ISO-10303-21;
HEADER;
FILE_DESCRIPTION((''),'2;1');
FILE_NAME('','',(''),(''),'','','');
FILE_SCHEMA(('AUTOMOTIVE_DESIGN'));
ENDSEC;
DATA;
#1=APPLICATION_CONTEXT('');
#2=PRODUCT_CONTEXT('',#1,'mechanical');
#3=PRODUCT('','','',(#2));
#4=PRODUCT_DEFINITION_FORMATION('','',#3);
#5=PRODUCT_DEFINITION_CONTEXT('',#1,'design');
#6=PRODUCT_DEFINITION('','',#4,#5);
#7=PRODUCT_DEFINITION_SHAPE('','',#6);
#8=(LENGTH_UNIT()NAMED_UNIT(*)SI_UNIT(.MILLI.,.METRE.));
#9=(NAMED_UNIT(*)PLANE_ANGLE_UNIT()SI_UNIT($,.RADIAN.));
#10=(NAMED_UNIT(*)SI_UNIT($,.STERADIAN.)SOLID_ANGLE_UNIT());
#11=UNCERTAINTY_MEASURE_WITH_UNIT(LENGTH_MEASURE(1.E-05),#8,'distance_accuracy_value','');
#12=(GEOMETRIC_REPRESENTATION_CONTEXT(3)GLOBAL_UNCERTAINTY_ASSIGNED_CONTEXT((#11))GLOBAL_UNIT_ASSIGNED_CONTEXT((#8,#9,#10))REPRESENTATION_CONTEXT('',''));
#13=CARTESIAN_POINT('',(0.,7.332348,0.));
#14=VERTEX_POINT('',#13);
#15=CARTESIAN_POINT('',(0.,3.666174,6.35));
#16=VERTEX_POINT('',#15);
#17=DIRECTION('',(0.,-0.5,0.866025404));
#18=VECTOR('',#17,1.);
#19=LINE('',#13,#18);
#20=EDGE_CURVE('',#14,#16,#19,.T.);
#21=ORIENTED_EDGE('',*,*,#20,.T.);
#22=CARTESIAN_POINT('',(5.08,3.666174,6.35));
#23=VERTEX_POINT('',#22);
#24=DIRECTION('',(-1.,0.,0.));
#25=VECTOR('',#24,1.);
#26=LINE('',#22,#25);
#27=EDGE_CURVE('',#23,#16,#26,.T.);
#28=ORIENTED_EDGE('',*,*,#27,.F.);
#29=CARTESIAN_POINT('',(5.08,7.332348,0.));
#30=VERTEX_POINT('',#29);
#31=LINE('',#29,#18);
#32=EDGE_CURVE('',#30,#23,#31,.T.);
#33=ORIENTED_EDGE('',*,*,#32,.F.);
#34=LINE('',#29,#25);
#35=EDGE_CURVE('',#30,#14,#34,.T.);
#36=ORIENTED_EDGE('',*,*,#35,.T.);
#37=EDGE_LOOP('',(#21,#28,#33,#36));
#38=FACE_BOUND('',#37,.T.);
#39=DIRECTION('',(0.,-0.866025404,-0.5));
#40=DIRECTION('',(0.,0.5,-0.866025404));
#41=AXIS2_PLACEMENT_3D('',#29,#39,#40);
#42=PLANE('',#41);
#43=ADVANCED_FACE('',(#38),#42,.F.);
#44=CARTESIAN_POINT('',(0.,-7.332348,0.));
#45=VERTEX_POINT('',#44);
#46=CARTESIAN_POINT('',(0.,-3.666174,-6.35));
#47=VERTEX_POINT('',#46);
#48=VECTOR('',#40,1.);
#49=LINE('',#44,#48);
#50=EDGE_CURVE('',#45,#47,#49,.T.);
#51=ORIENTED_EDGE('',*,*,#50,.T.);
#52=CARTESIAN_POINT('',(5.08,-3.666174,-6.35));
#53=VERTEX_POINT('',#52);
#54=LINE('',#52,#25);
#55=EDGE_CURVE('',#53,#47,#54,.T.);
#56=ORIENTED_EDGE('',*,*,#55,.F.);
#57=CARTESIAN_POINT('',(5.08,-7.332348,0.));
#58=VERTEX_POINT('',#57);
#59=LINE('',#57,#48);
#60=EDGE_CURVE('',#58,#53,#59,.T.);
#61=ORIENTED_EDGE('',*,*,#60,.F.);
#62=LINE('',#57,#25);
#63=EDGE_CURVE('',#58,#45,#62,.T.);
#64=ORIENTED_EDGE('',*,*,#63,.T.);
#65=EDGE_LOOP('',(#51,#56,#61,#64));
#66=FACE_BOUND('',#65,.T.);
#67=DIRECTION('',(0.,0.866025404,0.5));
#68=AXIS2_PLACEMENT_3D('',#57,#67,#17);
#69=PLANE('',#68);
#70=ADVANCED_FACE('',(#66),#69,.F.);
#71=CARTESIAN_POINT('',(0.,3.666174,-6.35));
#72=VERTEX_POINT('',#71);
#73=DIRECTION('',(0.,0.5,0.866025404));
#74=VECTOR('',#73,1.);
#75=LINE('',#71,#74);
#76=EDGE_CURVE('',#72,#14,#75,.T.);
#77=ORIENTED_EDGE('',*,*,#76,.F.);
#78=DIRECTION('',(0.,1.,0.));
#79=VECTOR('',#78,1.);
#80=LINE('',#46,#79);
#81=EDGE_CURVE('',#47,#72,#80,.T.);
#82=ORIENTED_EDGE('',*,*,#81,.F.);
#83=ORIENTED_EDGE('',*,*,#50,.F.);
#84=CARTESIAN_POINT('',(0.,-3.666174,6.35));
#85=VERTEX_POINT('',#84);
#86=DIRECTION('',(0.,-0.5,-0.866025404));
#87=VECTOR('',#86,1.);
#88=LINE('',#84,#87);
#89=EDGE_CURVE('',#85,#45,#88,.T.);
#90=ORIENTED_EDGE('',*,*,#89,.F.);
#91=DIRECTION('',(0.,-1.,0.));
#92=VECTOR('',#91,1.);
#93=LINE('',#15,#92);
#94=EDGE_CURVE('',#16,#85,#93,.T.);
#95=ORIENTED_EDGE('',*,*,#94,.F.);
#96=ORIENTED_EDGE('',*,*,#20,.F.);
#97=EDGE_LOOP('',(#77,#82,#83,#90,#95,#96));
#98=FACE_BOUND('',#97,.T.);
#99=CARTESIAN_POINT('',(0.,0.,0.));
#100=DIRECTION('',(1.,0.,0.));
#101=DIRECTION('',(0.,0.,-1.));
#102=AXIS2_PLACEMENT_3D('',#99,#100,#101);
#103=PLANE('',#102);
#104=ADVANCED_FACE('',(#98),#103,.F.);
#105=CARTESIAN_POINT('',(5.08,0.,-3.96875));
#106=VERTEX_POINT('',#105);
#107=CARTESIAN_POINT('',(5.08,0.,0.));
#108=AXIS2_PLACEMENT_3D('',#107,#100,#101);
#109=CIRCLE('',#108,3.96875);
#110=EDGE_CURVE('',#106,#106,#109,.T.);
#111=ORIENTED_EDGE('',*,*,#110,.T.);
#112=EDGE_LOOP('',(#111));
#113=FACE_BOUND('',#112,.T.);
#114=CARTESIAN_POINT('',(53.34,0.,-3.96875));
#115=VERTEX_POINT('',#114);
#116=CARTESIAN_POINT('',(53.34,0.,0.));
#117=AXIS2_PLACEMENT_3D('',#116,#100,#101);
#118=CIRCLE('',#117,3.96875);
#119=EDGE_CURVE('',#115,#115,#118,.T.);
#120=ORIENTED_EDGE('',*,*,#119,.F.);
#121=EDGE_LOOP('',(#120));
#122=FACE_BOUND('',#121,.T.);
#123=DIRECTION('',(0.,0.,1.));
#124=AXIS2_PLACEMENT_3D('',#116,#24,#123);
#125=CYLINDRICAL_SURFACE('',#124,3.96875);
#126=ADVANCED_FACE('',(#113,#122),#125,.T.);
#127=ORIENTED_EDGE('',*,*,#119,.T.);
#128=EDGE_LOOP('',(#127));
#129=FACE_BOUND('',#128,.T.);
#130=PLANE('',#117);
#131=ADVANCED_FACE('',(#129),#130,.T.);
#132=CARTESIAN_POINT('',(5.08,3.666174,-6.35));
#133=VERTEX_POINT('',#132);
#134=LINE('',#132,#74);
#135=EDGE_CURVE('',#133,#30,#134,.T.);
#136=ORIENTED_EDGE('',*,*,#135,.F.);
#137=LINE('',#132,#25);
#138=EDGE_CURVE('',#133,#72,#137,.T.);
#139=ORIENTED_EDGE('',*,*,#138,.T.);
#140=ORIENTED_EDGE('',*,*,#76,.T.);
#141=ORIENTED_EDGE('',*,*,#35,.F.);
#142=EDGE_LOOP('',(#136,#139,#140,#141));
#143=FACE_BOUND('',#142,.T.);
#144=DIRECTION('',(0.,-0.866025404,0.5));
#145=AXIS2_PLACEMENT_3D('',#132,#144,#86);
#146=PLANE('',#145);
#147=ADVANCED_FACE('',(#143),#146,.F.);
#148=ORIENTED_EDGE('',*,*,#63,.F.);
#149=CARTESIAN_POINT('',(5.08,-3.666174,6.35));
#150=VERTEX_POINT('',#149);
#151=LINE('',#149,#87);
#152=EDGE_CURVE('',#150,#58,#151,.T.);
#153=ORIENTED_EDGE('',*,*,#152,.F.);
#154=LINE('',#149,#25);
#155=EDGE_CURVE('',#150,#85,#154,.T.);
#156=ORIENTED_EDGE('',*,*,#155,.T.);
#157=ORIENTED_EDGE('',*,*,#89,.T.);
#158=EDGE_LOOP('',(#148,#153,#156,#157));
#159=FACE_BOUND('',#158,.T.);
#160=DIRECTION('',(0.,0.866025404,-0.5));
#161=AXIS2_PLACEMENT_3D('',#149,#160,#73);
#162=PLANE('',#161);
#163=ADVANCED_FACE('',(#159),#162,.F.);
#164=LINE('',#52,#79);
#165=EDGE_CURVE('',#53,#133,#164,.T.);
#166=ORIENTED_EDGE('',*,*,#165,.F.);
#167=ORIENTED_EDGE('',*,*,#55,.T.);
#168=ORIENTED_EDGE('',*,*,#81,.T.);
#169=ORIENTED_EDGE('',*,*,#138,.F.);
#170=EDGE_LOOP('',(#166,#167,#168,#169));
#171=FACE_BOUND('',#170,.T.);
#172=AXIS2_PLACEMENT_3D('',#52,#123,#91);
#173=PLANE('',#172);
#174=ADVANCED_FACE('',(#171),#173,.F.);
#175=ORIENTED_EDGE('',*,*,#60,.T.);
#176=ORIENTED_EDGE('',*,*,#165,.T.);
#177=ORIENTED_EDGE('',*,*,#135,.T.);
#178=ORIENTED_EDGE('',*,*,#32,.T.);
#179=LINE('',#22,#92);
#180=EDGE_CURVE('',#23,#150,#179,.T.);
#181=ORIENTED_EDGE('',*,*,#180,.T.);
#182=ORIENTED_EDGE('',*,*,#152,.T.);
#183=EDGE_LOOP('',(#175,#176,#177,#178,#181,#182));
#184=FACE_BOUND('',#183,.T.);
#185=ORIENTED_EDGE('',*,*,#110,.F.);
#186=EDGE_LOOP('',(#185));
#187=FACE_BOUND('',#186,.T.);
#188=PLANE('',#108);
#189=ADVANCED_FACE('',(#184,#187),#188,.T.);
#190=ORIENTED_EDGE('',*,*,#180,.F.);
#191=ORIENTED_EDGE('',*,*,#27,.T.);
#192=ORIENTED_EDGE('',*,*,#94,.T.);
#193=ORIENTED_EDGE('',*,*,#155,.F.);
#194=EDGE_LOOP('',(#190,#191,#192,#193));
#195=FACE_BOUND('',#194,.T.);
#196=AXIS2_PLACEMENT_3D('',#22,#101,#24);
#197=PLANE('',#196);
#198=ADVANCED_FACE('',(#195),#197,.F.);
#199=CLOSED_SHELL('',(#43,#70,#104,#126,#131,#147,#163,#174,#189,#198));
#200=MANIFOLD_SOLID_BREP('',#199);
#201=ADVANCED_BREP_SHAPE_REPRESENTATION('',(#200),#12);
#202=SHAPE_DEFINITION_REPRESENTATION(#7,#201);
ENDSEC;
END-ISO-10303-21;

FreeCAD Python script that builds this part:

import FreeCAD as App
import Part
import Sketcher
Q = App.Units.Quantity

doc = App.newDocument("Part")
params = doc.addObject("Spreadsheet::Sheet", "Params")
for row, (alias, value) in enumerate([
    ("pad1_length", "0.2 in"),
    ("sketch2_diameter", "0.3125 in"),
    ("pad2_length", "1.9 in"),
], start=1):
    params.set(f"A{row}", alias)
    params.set(f"B{row}", "=" + value)
    params.setAlias(f"B{row}", alias)

body = doc.addObject("PartDesign::Body", "Body")

sketch1 = body.newObject("Sketcher::SketchObject", "Sketch")
sketch1.AttachmentSupport = (doc.getObject("YZ_Plane"), [""])
sketch1.MapMode = "FlatFace"
sketch1.addGeometry([
    Part.LineSegment(App.Vector(4, -6, 0), App.Vector(7, 0, 0)),
    Part.LineSegment(App.Vector(7, 0, 0), App.Vector(4, 6, 0)),
    Part.LineSegment(App.Vector(4, 6, 0), App.Vector(-4, 6, 0)),
    Part.LineSegment(App.Vector(-4, 6, 0), App.Vector(-7, 0, 0)),
    Part.LineSegment(App.Vector(-7, 0, 0), App.Vector(-4, -6, 0)),
    Part.LineSegment(App.Vector(-4, -6, 0), App.Vector(4, -6, 0)),
], False)
sketch1.addConstraint([
    Sketcher.Constraint("Coincident", 0, 2, 1, 1),
    Sketcher.Constraint("Coincident", 1, 2, 2, 1),
    Sketcher.Constraint("Coincident", 2, 2, 3, 1),
    Sketcher.Constraint("Coincident", 3, 2, 4, 1),
    Sketcher.Constraint("Coincident", 4, 2, 5, 1),
    Sketcher.Constraint("Coincident", 5, 2, 0, 1),
    Sketcher.Constraint("Horizontal", 2),
    Sketcher.Constraint("Horizontal", 5),
    Sketcher.Constraint("Symmetric", 0, 2, 3, 2, -1, 1),
    Sketcher.Constraint("Symmetric", 1, 2, 4, 2, -1, 1),
    Sketcher.Constraint("PointOnObject", 0, 2, -1),
    Sketcher.Constraint("Parallel", 0, 3),
    Sketcher.Constraint("Vertical", 2, 2, 4, 2),
    Sketcher.Constraint("Angle", 0, Q("60 deg")),
    Sketcher.Constraint("DistanceY", 4, 2, 2, 2, Q("0.5 in")),
    Sketcher.Constraint("DistanceX", 2, 2, 2, 1, 7.332348),
])
pad1 = body.newObject("PartDesign::Pad", "Pad")
pad1.Profile = sketch1
pad1.setExpression("Length", "Params.pad1_length")

sketch2 = body.newObject("Sketcher::SketchObject", "Sketch001")
sketch2.AttachmentSupport = (doc.getObject("YZ_Plane"), [""])
sketch2.MapMode = "FlatFace"
sketch2.AttachmentOffset = App.Placement(App.Vector(0, 0, 0.2 * 25.4), App.Rotation())
sketch2.addGeometry(Part.Circle(App.Vector(0, 0, 0), App.Vector(0, 0, 1), 4), False)
sketch2.addConstraint([
    Sketcher.Constraint("Coincident", 0, 3, -1, 1),
    Sketcher.Constraint("Diameter", 0, Q("0.3125 in")),
])
sketch2.setExpression("Constraints[1]", "Params.sketch2_diameter")
pad2 = body.newObject("PartDesign::Pad", "Pad001")
pad2.Profile = sketch2
pad2.setExpression("Length", "Params.pad2_length")

doc.recompute()
